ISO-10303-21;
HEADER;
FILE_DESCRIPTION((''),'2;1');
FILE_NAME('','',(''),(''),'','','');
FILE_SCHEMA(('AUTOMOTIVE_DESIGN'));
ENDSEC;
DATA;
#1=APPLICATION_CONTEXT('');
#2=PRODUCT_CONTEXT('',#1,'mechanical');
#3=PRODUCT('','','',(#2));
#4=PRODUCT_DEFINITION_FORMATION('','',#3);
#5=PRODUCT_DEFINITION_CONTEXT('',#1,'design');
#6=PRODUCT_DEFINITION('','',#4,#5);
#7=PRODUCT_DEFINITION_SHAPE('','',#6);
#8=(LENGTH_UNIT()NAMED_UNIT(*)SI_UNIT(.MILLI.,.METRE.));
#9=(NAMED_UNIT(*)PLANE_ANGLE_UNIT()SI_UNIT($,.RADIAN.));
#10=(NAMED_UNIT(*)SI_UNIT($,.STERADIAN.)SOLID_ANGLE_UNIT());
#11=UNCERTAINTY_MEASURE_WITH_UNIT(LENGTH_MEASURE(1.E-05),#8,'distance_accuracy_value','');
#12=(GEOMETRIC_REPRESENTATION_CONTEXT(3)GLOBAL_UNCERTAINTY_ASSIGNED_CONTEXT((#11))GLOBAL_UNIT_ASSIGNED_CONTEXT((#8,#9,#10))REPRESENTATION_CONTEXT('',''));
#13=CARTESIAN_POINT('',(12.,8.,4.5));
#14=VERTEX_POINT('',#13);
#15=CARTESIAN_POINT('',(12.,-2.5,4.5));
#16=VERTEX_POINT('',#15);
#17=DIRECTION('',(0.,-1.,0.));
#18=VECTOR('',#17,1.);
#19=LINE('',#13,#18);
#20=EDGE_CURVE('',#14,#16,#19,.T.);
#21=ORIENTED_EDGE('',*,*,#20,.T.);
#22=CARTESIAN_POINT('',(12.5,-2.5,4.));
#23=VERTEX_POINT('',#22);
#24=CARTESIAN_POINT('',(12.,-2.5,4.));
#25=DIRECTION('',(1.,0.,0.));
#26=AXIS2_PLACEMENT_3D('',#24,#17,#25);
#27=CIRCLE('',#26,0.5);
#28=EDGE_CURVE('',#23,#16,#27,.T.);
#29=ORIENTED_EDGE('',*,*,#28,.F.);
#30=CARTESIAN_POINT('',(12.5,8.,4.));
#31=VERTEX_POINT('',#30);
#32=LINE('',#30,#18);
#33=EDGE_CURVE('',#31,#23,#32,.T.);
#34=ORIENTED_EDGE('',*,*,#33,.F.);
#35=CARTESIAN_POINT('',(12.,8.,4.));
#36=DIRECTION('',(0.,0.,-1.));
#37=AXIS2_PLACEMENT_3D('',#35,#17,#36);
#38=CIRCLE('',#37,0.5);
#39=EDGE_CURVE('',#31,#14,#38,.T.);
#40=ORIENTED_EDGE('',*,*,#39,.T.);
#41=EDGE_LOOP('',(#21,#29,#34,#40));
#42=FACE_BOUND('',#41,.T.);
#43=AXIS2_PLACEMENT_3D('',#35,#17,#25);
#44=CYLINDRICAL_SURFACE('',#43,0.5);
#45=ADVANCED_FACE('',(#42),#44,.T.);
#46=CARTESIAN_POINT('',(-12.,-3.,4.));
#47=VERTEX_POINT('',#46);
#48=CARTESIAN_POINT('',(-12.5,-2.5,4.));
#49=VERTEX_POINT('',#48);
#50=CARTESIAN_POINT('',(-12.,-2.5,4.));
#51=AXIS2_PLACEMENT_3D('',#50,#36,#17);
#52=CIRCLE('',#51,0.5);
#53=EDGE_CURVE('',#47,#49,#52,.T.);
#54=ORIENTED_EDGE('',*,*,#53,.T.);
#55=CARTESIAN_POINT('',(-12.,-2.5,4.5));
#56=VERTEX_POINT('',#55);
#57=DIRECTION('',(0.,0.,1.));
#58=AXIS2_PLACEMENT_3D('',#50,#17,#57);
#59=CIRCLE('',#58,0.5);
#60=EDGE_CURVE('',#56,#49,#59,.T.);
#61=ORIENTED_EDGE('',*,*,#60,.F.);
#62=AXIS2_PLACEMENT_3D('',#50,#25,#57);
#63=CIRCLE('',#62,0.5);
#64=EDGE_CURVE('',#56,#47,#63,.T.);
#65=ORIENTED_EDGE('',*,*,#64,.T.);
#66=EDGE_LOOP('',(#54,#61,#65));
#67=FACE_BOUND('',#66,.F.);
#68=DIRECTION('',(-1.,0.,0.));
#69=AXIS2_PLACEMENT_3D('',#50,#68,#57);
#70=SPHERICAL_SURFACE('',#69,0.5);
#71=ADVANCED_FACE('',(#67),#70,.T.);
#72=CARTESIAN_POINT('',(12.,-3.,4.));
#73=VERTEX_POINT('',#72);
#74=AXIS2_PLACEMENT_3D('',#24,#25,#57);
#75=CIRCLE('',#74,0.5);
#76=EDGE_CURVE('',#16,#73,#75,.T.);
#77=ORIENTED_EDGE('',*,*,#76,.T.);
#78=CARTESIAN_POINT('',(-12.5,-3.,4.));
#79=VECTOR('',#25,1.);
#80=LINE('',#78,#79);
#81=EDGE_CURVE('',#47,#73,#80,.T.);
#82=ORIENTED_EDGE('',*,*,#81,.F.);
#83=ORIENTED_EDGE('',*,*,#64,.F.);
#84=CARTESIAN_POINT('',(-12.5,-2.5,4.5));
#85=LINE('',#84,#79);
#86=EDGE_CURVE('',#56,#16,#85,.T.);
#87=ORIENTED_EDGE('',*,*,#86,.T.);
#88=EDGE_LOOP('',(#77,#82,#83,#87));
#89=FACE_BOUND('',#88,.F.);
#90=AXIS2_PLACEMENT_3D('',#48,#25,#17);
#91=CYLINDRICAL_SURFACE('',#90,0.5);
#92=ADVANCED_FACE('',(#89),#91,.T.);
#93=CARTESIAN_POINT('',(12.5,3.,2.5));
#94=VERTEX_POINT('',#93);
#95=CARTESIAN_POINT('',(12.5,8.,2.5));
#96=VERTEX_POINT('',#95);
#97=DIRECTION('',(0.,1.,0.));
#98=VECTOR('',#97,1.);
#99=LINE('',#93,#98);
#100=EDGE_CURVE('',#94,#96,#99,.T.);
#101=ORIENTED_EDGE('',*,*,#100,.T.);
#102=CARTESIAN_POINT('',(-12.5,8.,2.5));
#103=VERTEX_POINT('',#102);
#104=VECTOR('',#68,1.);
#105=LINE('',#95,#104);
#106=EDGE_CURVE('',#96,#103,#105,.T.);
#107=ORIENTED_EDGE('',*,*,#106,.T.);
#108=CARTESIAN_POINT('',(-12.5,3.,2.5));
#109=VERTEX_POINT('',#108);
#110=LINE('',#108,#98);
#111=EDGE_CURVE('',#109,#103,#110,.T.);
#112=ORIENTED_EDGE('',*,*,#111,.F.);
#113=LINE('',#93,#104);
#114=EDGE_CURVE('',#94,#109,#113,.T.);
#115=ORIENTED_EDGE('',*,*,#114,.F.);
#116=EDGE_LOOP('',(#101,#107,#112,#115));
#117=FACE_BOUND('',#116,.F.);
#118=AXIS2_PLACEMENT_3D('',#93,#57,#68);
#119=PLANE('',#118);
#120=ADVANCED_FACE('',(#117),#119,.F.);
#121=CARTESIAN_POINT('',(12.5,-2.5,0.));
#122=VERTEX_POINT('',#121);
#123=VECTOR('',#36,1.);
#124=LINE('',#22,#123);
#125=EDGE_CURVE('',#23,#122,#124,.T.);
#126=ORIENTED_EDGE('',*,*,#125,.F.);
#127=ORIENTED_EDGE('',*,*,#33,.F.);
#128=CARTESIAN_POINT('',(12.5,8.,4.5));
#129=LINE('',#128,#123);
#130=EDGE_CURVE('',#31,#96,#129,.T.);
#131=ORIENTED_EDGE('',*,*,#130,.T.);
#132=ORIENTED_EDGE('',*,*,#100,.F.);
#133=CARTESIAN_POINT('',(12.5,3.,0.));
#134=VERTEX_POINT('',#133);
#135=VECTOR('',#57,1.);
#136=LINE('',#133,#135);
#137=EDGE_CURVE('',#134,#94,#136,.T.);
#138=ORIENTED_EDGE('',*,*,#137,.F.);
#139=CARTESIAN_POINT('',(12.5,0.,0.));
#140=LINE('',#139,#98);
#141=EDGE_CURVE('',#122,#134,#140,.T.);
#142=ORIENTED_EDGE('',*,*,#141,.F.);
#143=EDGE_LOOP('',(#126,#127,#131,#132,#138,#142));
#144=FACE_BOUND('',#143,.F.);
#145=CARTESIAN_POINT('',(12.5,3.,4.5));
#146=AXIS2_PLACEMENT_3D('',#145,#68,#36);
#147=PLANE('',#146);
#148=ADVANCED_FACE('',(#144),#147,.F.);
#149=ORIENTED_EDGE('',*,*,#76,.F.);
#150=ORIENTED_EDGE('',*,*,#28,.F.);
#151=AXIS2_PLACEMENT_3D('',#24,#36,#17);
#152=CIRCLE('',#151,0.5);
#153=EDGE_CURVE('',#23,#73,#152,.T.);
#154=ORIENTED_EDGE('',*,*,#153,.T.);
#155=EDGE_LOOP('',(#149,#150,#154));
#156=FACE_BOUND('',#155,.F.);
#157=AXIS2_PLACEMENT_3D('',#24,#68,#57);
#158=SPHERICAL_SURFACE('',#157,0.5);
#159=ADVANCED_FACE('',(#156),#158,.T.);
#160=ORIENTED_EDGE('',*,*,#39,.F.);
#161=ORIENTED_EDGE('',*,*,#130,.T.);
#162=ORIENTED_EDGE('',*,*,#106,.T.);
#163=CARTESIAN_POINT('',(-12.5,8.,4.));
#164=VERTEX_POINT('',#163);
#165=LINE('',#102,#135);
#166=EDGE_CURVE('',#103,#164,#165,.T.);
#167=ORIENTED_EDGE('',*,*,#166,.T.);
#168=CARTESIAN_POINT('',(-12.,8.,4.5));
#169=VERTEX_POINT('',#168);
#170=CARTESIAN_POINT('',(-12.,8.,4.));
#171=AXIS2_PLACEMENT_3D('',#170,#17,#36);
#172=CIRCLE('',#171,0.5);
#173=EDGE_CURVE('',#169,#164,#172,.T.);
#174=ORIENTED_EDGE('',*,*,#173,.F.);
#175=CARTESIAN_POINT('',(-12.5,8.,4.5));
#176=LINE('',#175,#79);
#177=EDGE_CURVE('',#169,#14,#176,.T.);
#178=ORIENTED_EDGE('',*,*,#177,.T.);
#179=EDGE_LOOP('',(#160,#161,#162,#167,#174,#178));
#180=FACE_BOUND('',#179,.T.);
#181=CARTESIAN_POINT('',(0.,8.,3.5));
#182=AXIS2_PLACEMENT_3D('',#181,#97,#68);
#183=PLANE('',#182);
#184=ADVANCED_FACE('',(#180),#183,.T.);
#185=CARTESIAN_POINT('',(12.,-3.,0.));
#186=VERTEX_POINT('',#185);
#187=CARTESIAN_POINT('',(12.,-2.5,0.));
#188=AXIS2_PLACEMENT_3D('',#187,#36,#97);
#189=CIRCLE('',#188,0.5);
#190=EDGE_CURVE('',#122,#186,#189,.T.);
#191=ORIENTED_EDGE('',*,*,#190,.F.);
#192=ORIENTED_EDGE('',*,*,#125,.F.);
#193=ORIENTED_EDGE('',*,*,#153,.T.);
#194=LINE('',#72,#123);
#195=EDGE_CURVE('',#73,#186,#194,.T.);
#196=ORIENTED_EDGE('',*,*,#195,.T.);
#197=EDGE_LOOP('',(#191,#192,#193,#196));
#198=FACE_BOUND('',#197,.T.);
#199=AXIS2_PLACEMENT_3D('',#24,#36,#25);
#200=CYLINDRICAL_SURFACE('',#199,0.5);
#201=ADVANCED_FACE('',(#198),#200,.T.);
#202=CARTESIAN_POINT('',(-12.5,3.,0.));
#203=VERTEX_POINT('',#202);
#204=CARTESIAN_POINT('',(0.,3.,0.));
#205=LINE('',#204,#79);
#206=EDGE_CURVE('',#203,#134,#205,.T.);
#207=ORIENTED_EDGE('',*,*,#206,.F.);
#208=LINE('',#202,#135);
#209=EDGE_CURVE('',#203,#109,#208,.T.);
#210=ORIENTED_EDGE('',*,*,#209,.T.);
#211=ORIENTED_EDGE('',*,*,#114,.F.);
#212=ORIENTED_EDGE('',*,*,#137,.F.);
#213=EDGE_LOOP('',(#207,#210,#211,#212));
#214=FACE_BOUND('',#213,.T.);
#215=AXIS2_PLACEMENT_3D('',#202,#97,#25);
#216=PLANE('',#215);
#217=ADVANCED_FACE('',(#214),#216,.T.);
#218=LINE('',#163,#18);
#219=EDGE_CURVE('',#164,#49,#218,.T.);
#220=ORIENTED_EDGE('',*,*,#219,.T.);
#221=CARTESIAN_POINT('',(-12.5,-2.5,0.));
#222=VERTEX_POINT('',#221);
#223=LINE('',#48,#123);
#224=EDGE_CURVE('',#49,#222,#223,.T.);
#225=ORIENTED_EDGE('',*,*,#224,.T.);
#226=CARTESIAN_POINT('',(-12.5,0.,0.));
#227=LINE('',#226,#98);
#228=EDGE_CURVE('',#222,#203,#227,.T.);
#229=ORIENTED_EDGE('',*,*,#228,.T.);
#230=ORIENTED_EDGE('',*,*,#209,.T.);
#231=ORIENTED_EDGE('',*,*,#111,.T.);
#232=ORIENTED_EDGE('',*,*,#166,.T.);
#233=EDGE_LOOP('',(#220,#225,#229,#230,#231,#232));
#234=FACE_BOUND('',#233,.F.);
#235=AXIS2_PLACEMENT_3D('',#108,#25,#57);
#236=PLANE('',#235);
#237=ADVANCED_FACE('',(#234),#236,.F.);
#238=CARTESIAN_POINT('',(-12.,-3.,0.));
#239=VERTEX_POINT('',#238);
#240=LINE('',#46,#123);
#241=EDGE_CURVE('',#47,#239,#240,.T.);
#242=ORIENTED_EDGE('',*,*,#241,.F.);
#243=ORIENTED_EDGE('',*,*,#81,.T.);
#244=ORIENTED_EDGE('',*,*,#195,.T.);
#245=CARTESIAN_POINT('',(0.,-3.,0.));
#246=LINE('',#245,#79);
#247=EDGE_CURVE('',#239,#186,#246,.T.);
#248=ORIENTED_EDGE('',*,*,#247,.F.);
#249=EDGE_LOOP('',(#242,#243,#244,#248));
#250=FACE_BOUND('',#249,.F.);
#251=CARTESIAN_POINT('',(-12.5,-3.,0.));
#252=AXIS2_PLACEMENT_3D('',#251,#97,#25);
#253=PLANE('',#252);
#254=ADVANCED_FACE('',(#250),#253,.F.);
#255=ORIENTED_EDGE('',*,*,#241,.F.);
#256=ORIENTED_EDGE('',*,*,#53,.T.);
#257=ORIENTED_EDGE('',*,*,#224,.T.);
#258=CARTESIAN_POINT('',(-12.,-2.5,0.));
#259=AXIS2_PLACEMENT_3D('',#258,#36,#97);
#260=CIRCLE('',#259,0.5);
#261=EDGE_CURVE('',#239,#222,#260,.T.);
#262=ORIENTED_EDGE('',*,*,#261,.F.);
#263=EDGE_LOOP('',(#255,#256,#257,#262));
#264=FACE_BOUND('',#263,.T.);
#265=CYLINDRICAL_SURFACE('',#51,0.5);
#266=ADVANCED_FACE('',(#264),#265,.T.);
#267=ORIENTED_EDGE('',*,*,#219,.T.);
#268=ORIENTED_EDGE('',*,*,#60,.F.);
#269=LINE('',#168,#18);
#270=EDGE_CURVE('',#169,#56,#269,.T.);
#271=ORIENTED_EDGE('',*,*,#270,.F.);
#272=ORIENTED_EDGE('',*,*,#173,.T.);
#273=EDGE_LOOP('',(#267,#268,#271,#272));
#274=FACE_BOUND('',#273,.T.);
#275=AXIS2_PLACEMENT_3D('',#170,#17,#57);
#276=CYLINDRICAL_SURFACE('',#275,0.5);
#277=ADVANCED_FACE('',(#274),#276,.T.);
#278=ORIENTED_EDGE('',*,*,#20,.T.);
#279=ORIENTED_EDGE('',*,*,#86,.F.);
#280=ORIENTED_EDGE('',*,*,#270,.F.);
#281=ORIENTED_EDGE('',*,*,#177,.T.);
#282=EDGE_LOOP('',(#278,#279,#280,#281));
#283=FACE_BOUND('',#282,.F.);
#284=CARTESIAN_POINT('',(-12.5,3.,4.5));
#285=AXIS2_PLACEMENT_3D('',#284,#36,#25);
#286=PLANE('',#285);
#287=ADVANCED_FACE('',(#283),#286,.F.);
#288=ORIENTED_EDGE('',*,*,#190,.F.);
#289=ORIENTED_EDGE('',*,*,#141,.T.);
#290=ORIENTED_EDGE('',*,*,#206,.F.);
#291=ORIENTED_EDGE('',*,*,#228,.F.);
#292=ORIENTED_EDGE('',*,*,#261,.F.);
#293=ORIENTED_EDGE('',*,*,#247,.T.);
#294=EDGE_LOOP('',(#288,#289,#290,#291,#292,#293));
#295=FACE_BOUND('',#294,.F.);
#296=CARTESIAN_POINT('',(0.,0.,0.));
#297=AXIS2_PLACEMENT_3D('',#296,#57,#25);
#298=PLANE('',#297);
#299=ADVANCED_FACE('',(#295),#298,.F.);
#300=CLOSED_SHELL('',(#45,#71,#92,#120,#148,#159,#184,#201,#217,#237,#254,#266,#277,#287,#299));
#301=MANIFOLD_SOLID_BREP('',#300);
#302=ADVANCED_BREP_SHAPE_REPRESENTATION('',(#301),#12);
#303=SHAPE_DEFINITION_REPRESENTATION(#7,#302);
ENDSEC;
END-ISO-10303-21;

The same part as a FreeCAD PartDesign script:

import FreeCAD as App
import Part
import Sketcher
from FreeCAD import Vector
Q = App.Units.Quantity


def edges_at(feature, points):
    """Names of the edges that pass closest to the given points."""
    edges = feature.Shape.Edges
    near = lambda p: min(range(len(edges)), key=lambda i: edges[i].distToShape(Part.Vertex(*p))[0])
    return sorted({f"Edge{near(p) + 1}" for p in points})


def add_polygon(sketch, points):
    """Adds a closed chain of lines whose ends are joined by coincident constraints."""
    first, n = sketch.GeometryCount, len(points)
    for a, b in zip(points, points[1:] + points[:1]):
        sketch.addGeometry(Part.LineSegment(App.Vector(*a, 0), App.Vector(*b, 0)), False)
    for i in range(n):
        sketch.addConstraint(Sketcher.Constraint("Coincident", first + i, 2, first + (i + 1) % n, 1))

doc = App.newDocument("Part")
body = doc.addObject("PartDesign::Body", "Body")

# Sketch on XY plane
sketch1 = body.newObject("Sketcher::SketchObject", "Sketch")
sketch1.AttachmentSupport = (doc.getObject("XY_Plane"), [""])
sketch1.MapMode = "FlatFace"
add_polygon(sketch1, [(-12, 3), (-12, -3), (12, -3), (12, 3)])  # lines 0-3
sketch1.addConstraint(Sketcher.Constraint("Vertical", 0))
sketch1.addConstraint(Sketcher.Constraint("Horizontal", 1))
sketch1.addConstraint(Sketcher.Constraint("Vertical", 2))
sketch1.addConstraint(Sketcher.Constraint("Horizontal", 3))
sketch1.addConstraint(Sketcher.Constraint("Symmetric", 0, 2, 2, 2, -1, 1))
sketch1.addConstraint(Sketcher.Constraint("DistanceX", 1, 1, 1, 2, Q("25 mm")))
sketch1.addConstraint(Sketcher.Constraint("DistanceY", 0, 2, 0, 1, Q("6 mm")))
pad1 = body.newObject("PartDesign::Pad", "Pad")
pad1.Profile = sketch1
pad1.Length = 4.5

# Sketch on XZ plane
sketch2 = body.newObject("Sketcher::SketchObject", "Sketch001")
sketch2.AttachmentSupport = (doc.getObject("XZ_Plane"), [""])
sketch2.MapMode = "FlatFace"
sketch2.AttachmentOffset = App.Placement(Vector(0, 0, -3), App.Rotation())
add_polygon(sketch2, [(12.5, 4.5), (12.5, 2.5), (-12.5, 2.5), (-12.5, 4.5)])  # lines 0-3
sketch2.addConstraint(Sketcher.Constraint("Vertical", 0))
sketch2.addConstraint(Sketcher.Constraint("Horizontal", 1))
sketch2.addConstraint(Sketcher.Constraint("Vertical", 2))
sketch2.addConstraint(Sketcher.Constraint("Horizontal", 3))
sketch2.addConstraint(Sketcher.Constraint("DistanceX", 1, 2, 1, 1, Q("25 mm")))
sketch2.addConstraint(Sketcher.Constraint("DistanceY", 0, 2, 0, 1, Q("2 mm")))
sketch2.addConstraint(Sketcher.Constraint("DistanceX", -1, 1, 0, 2, Q("12.5 mm")))
sketch2.addConstraint(Sketcher.Constraint("DistanceY", -1, 1, 0, 2, Q("2.5 mm")))
pad2 = body.newObject("PartDesign::Pad", "Pad001")
pad2.Profile = sketch2
pad2.Length = 5
pad2.Reversed = True
doc.recompute()

fillet = body.newObject("PartDesign::Fillet", "Fillet")
fillet.Base = (pad2, edges_at(pad2, [(0, -3, 4.5)]))
fillet.Radius = 0.5
doc.recompute()

fillet2 = body.newObject("PartDesign::Fillet", "Fillet001")
fillet2.Base = (fillet, edges_at(fillet, [(12.5, 2.75, 4.5), (-12.5, 2.75, 4.5)]))
fillet2.Radius = 0.5

doc.recompute()
